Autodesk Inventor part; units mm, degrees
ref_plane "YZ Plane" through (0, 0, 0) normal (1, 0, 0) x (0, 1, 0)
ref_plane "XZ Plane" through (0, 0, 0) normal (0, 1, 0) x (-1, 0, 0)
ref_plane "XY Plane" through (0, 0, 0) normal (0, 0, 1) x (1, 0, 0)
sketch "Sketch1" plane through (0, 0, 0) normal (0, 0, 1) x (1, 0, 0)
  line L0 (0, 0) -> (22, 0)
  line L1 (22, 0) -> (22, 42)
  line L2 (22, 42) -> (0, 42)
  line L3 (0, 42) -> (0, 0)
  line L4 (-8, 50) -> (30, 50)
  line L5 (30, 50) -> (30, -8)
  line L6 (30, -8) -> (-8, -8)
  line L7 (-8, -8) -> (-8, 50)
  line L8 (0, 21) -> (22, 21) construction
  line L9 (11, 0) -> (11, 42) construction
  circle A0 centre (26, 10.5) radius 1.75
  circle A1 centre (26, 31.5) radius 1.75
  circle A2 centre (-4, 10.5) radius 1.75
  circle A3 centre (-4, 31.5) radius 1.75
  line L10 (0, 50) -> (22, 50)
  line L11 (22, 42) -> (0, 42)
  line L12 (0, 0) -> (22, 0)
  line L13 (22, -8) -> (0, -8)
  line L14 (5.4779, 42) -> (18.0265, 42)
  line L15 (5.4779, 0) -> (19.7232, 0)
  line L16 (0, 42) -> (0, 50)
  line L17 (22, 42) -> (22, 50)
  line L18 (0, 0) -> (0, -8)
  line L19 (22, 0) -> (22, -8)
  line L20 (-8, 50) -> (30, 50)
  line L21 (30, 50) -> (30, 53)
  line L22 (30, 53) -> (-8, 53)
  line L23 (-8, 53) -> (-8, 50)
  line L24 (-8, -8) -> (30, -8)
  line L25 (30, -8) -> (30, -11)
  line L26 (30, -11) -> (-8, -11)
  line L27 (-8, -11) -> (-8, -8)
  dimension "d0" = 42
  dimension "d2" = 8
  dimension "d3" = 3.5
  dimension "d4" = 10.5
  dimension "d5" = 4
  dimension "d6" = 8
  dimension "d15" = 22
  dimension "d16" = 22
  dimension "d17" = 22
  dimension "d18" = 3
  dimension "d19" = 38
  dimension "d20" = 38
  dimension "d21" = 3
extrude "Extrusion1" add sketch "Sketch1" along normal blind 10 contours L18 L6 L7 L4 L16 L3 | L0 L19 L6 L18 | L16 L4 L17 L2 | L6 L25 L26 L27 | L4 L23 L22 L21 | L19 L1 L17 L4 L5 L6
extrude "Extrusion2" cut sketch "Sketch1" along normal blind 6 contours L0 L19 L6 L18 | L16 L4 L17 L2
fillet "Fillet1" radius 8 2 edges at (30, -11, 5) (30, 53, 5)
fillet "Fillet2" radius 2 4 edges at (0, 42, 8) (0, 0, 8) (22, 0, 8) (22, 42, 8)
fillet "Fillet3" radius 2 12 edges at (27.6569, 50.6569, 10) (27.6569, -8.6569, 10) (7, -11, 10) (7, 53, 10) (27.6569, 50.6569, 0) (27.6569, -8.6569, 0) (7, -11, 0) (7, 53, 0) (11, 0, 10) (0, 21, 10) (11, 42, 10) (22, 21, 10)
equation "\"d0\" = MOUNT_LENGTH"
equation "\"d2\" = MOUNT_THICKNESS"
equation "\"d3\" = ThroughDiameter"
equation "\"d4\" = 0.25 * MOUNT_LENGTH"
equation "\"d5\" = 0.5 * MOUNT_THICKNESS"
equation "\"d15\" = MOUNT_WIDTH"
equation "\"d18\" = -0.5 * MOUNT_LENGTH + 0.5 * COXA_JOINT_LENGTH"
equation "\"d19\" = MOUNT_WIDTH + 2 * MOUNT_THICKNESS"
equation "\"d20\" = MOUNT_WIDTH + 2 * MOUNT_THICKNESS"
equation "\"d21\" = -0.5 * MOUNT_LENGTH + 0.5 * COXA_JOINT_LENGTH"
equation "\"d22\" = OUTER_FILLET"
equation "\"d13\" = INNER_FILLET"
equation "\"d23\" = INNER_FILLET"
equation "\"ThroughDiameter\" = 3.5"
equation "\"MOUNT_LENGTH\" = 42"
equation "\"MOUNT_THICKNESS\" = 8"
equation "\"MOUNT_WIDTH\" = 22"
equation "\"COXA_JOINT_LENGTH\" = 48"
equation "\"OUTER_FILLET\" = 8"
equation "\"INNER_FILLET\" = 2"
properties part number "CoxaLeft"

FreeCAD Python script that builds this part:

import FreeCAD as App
import Part
import Sketcher

V = App.Vector


def edges_at(feature, points):
    """Names of the edges that pass closest to the given points."""
    edges = feature.Shape.Edges
    near = lambda p: min(range(len(edges)), key=lambda i: edges[i].distToShape(Part.Vertex(*p))[0])
    return sorted({f"Edge{near(p) + 1}" for p in points})

doc = App.newDocument("Part")
body = doc.addObject("PartDesign::Body", "Body")

# Sketch on XY plane
sketch1 = body.newObject("Sketcher::SketchObject", "Sketch")
sketch1.AttachmentSupport = (doc.getObject("XY_Plane"), [""])
sketch1.MapMode = "FlatFace"
sketch1.addGeometry([
    Part.LineSegment(V(-8, -11, 0), V(30, -11, 0)),  # 0
    Part.LineSegment(V(30, -11, 0), V(30, 53, 0)),  # 1
    Part.LineSegment(V(30, 53, 0), V(-8, 53, 0)),  # 2
    Part.LineSegment(V(-8, 53, 0), V(-8, -11, 0)),  # 3
    Part.LineSegment(V(0, 0, 0), V(0, 42, 0)),  # 4
    Part.LineSegment(V(0, 42, 0), V(22, 42, 0)),  # 5
    Part.LineSegment(V(22, 42, 0), V(22, 0, 0)),  # 6
    Part.LineSegment(V(22, 0, 0), V(0, 0, 0)),  # 7
    Part.Circle(V(-4, 10.5, 0), V(0, 0, 1), 1.8),  # 8
    Part.Circle(V(-4, 31.5, 0), V(0, 0, 1), 1.8),  # 9
    Part.Circle(V(26, 31.5, 0), V(0, 0, 1), 1.8),  # 10
    Part.Circle(V(26, 10.5, 0), V(0, 0, 1), 1.8),  # 11
], False)
sketch1.addConstraint([
    Sketcher.Constraint("Coincident", 0, 2, 1, 1),
    Sketcher.Constraint("Coincident", 1, 2, 2, 1),
    Sketcher.Constraint("Coincident", 2, 2, 3, 1),
    Sketcher.Constraint("Coincident", 3, 2, 0, 1),
    Sketcher.Constraint("Coincident", 4, 2, 5, 1),
    Sketcher.Constraint("Coincident", 5, 2, 6, 1),
    Sketcher.Constraint("Coincident", 6, 2, 7, 1),
    Sketcher.Constraint("Coincident", 7, 2, 4, 1),
    Sketcher.Constraint("Horizontal", 0),
    Sketcher.Constraint("Vertical", 1),
    Sketcher.Constraint("Horizontal", 2),
    Sketcher.Constraint("Vertical", 3),
    Sketcher.Constraint("Vertical", 4),
    Sketcher.Constraint("Horizontal", 5),
    Sketcher.Constraint("Vertical", 6),
    Sketcher.Constraint("Horizontal", 7),
    Sketcher.Constraint("Coincident", 7, 2, -1, 1),
    Sketcher.Constraint("Equal", 8, 9),
    Sketcher.Constraint("Equal", 9, 10),
    Sketcher.Constraint("Equal", 10, 11),
    Sketcher.Constraint("Horizontal", 9, 3, 10, 3),
    Sketcher.Constraint("Horizontal", 8, 3, 11, 3),
    Sketcher.Constraint("Vertical", 8, 3, 9, 3),
    Sketcher.Constraint("Vertical", 10, 3, 11, 3),
    Sketcher.Constraint("Diameter", 8, 3.5),
    Sketcher.Constraint("DistanceX", 0, 1, 0, 2, 38.0),
    Sketcher.Constraint("DistanceX", 5, 1, 5, 2, 22.0),
    Sketcher.Constraint("DistanceY", 4, 1, 4, 2, 42.0),
    Sketcher.Constraint("DistanceX", 8, 3, -1, 1, 4.0),
    Sketcher.Constraint("DistanceX", 2, 2, -1, 1, 8.0),
    Sketcher.Constraint("DistanceX", 11, 3, 0, 2, 4.0),
    Sketcher.Constraint("DistanceY", -1, 1, 8, 3, 10.5),
    Sketcher.Constraint("DistanceY", 9, 3, 4, 2, 10.5),
    Sketcher.Constraint("DistanceY", 1, 1, 1, 2, 64.0),
    Sketcher.Constraint("DistanceY", 0, 2, -1, 1, 11.0),
])
pad1 = body.newObject("PartDesign::Pad", "Pad")
pad1.Profile = sketch1
pad1.Length = 10

# Sketch on XY plane
sketch2 = body.newObject("Sketcher::SketchObject", "Sketch001")
sketch2.AttachmentSupport = (doc.getObject("XY_Plane"), [""])
sketch2.MapMode = "FlatFace"
sketch2.addGeometry([
    Part.LineSegment(V(22, 0, 0), V(0, 0, 0)),  # 0
    Part.LineSegment(V(0, 0, 0), V(0, -8, 0)),  # 1
    Part.LineSegment(V(0, -8, 0), V(22, -8, 0)),  # 2
    Part.LineSegment(V(22, -8, 0), V(22, 0, 0)),  # 3
    Part.LineSegment(V(0, 50, 0), V(0, 42, 0)),  # 4
    Part.LineSegment(V(0, 42, 0), V(22, 42, 0)),  # 5
    Part.LineSegment(V(22, 42, 0), V(22, 50, 0)),  # 6
    Part.LineSegment(V(22, 50, 0), V(0, 50, 0)),  # 7
], False)
sketch2.addConstraint([
    Sketcher.Constraint("Coincident", 0, 2, 1, 1),
    Sketcher.Constraint("Coincident", 1, 2, 2, 1),
    Sketcher.Constraint("Coincident", 2, 2, 3, 1),
    Sketcher.Constraint("Coincident", 3, 2, 0, 1),
    Sketcher.Constraint("Coincident", 4, 2, 5, 1),
    Sketcher.Constraint("Coincident", 5, 2, 6, 1),
    Sketcher.Constraint("Coincident", 6, 2, 7, 1),
    Sketcher.Constraint("Coincident", 7, 2, 4, 1),
    Sketcher.Constraint("Horizontal", 0),
    Sketcher.Constraint("Vertical", 1),
    Sketcher.Constraint("Horizontal", 2),
    Sketcher.Constraint("Vertical", 3),
    Sketcher.Constraint("Vertical", 4),
    Sketcher.Constraint("Horizontal", 5),
    Sketcher.Constraint("Vertical", 6),
    Sketcher.Constraint("Horizontal", 7),
    Sketcher.Constraint("Coincident", 0, 2, -1, 1),
    Sketcher.Constraint("PointOnObject", 4, 2, -2),
    Sketcher.Constraint("Vertical", 3, 2, 5, 2),
    Sketcher.Constraint("Equal", 3, 4),
    Sketcher.Constraint("DistanceX", 0, 2, 0, 1, 22.0),
    Sketcher.Constraint("DistanceY", 1, 2, 1, 1, 8.0),
    Sketcher.Constraint("DistanceY", -1, 1, 4, 2, 42.0),
])
pocket1 = body.newObject("PartDesign::Pocket", "Pocket")
pocket1.Profile = sketch2
pocket1.Length = 6
pocket1.Reversed = True
doc.recompute()

fillet = body.newObject("PartDesign::Fillet", "Fillet")
fillet.Base = (pocket1, edges_at(pocket1, [(30, -11, 5), (30, 53, 5)]))
fillet.Radius = 8
doc.recompute()

fillet2 = body.newObject("PartDesign::Fillet", "Fillet001")
fillet2.Base = (fillet, edges_at(fillet, [
    (0, 42, 8),
    (0, 0, 8),
    (22, 0, 8),
    (22, 42, 8),
]))
fillet2.Radius = 2
doc.recompute()

fillet3 = body.newObject("PartDesign::Fillet", "Fillet002")
fillet3.Base = (fillet2, edges_at(fillet2, [
    (27.657, 50.657, 10),
    (27.657, -8.657, 10),
    (7, -11, 10),
    (7, 53, 10),
    (27.657, 50.657, 0),
    (27.657, -8.657, 0),
    (7, -11, 0),
    (7, 53, 0),
    (11, 0, 10),
    (0, 21, 10),
    (11, 42, 10),
    (22, 21, 10),
]))
fillet3.Radius = 2

doc.recompute()
